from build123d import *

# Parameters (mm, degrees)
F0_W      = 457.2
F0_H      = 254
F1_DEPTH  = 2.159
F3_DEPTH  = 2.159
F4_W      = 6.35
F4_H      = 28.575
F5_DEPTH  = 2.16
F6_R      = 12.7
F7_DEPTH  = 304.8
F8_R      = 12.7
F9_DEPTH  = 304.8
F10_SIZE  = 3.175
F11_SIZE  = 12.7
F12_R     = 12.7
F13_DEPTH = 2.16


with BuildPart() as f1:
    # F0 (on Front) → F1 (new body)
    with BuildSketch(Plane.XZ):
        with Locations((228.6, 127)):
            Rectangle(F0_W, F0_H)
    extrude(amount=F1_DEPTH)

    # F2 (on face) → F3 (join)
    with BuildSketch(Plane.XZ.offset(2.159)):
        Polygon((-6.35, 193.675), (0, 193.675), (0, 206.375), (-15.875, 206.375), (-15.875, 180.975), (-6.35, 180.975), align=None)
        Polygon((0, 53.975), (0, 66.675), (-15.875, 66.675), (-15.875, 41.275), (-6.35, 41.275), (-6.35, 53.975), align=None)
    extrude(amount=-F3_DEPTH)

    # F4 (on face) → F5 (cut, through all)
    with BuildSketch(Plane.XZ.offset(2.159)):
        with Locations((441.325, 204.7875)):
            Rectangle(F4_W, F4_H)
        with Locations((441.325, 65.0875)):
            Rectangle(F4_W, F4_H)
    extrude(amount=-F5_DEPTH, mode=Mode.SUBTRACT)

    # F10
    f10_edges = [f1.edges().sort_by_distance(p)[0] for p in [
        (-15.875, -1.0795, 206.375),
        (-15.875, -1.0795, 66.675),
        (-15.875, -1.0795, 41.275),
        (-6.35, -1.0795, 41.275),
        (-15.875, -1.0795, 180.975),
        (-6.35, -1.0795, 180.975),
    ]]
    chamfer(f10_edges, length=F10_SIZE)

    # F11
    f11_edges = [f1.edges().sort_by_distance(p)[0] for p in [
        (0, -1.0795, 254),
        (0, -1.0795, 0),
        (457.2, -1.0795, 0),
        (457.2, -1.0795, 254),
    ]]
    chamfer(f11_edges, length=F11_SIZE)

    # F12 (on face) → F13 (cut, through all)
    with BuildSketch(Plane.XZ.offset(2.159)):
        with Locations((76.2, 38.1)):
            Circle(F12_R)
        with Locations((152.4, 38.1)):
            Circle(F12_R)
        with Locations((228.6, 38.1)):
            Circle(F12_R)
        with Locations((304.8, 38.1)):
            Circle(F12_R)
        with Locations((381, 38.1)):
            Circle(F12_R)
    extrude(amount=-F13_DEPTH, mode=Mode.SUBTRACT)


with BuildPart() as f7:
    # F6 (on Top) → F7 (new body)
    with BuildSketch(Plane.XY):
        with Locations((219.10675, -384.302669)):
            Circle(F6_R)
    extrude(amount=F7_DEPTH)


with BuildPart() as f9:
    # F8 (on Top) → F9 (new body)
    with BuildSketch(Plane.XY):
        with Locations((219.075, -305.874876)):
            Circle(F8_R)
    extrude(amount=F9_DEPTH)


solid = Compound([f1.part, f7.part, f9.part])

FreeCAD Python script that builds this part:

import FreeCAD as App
import Part
import Sketcher

V = App.Vector
Q = App.Units.Quantity


def edges_at(feature, points):
    """Names of the edges that pass closest to the given points."""
    edges = feature.Shape.Edges
    near = lambda p: min(range(len(edges)), key=lambda i: edges[i].distToShape(Part.Vertex(*p))[0])
    return sorted({f"Edge{near(p) + 1}" for p in points})


def add_polygon(sketch, points):
    """Adds a closed chain of lines whose ends are joined by coincident constraints."""
    first, n = sketch.GeometryCount, len(points)
    for a, b in zip(points, points[1:] + points[:1]):
        sketch.addGeometry(Part.LineSegment(App.Vector(*a, 0), App.Vector(*b, 0)), False)
    for i in range(n):
        sketch.addConstraint(Sketcher.Constraint("Coincident", first + i, 2, first + (i + 1) % n, 1))

doc = App.newDocument("Part")
body = doc.addObject("PartDesign::Body", "Body")

sketch1 = body.newObject("Sketcher::SketchObject", "Sketch")
sketch1.AttachmentSupport = (doc.getObject("XZ_Plane"), [""])
sketch1.MapMode = "FlatFace"
add_polygon(sketch1, [(0, 254), (0, 0), (457, 0), (457, 254)])
sketch1.addConstraint([
    Sketcher.Constraint("Vertical", 0),
    Sketcher.Constraint("Horizontal", 1),
    Sketcher.Constraint("Vertical", 2),
    Sketcher.Constraint("Horizontal", 3),
    Sketcher.Constraint("Coincident", 0, 2, -1, 1),
    Sketcher.Constraint("DistanceX", 1, 1, 1, 2, Q("18 in")),
    Sketcher.Constraint("DistanceY", 0, 2, 0, 1, Q("10 in")),
])
pad1 = body.newObject("PartDesign::Pad", "Pad")
pad1.Profile = sketch1
pad1.Length = Q("0.085 in")

sketch2 = body.newObject("Sketcher::SketchObject", "Sketch001")
sketch2.AttachmentSupport = (doc.getObject("XZ_Plane"), [""])
sketch2.MapMode = "FlatFace"
sketch2.AttachmentOffset = App.Placement(V(0, 0, 0.085 * 25.4), App.Rotation())
add_polygon(sketch2, [(-6, 194), (0, 194), (0, 206), (-16, 206), (-16, 181), (-6, 181)])
add_polygon(sketch2, [(0, 54), (0, 67), (-16, 67), (-16, 41), (-6, 41), (-6, 54)])
sketch2.addConstraint([
    Sketcher.Constraint("Horizontal", 0),
    Sketcher.Constraint("Vertical", 1),
    Sketcher.Constraint("Horizontal", 2),
    Sketcher.Constraint("Vertical", 3),
    Sketcher.Constraint("Horizontal", 4),
    Sketcher.Constraint("Vertical", 5),
    Sketcher.Constraint("Vertical", 6),
    Sketcher.Constraint("Horizontal", 7),
    Sketcher.Constraint("Vertical", 8),
    Sketcher.Constraint("Horizontal", 9),
    Sketcher.Constraint("Vertical", 10),
    Sketcher.Constraint("Horizontal", 11),
    Sketcher.Constraint("PointOnObject", 0, 2, -2),
    Sketcher.Constraint("PointOnObject", 6, 2, -2),
    Sketcher.Constraint("Vertical", 3, 2, 7, 2),
    Sketcher.Constraint("Vertical", 5, 2, 9, 2),
    Sketcher.Constraint("Equal", 1, 5),
    Sketcher.Constraint("Equal", 5, 6),
    Sketcher.Constraint("Equal", 3, 8),
    Sketcher.Constraint("DistanceY", 3, 2, 3, 1, Q("1 in")),
    Sketcher.Constraint("DistanceY", 6, 2, 0, 2, Q("5 in")),
    Sketcher.Constraint("DistanceX", 0, 1, 0, 2, Q("0.25 in")),
    Sketcher.Constraint("DistanceX", 2, 2, 2, 1, Q("0.625 in")),
    Sketcher.Constraint("DistanceY", -1, 1, 0, 2, Q("7.625 in")),
])
pad2 = body.newObject("PartDesign::Pad", "Pad001")
pad2.Profile = sketch2
pad2.Length = Q("0.085 in")
pad2.Reversed = True

sketch3 = body.newObject("Sketcher::SketchObject", "Sketch002")
sketch3.AttachmentSupport = (doc.getObject("XZ_Plane"), [""])
sketch3.MapMode = "FlatFace"
sketch3.AttachmentOffset = App.Placement(V(0, 0, 0.085 * 25.4), App.Rotation())
add_polygon(sketch3, [(438, 219), (438, 190), (444, 190), (444, 219)])
add_polygon(sketch3, [(438, 79), (438, 51), (444, 51), (444, 79)])
sketch3.addConstraint([
    Sketcher.Constraint("Vertical", 0),
    Sketcher.Constraint("Horizontal", 1),
    Sketcher.Constraint("Vertical", 2),
    Sketcher.Constraint("Horizontal", 3),
    Sketcher.Constraint("Vertical", 4),
    Sketcher.Constraint("Horizontal", 5),
    Sketcher.Constraint("Vertical", 6),
    Sketcher.Constraint("Horizontal", 7),
    Sketcher.Constraint("Vertical", 3, 2, 4, 2),
    Sketcher.Constraint("Vertical", 2, 2, 5, 2),
    Sketcher.Constraint("Equal", 2, 4),
    Sketcher.Constraint("DistanceY", -1, 1, 4, 2, Q("2 in")),
    Sketcher.Constraint("DistanceX", 1, 1, 1, 2, Q("0.25 in")),
    Sketcher.Constraint("DistanceY", -1, 1, 0, 2, Q("7.5 in")),
    Sketcher.Constraint("DistanceX", -1, 1, 1, 2, Q("17.5 in")),
    Sketcher.Constraint("DistanceY", 0, 2, 0, 1, Q("1.125 in")),
])
pocket1 = body.newObject("PartDesign::Pocket", "Pocket")
pocket1.Profile = sketch3
pocket1.Type = "ThroughAll"
doc.recompute()

chamfer = body.newObject("PartDesign::Chamfer", "Chamfer")
chamfer.Base = (pocket1, edges_at(pocket1, [
    (-15.875, -1.079, 206.375),
    (-15.875, -1.079, 66.675),
    (-15.875, -1.079, 41.275),
    (-6.35, -1.079, 41.275),
    (-15.875, -1.079, 180.975),
    (-6.35, -1.079, 180.975),
]))
chamfer.Size = Q("0.125 in")
doc.recompute()

chamfer2 = body.newObject("PartDesign::Chamfer", "Chamfer001")
chamfer2.Base = (chamfer, edges_at(chamfer, [
    (0, -1.079, 254),
    (0, -1.079, 0),
    (457.2, -1.079, 0),
    (457.2, -1.079, 254),
]))
chamfer2.Size = Q("0.5 in")

sketch4 = body.newObject("Sketcher::SketchObject", "Sketch003")
sketch4.AttachmentSupport = (doc.getObject("XZ_Plane"), [""])
sketch4.MapMode = "FlatFace"
sketch4.AttachmentOffset = App.Placement(V(0, 0, 0.085 * 25.4), App.Rotation())
sketch4.addGeometry([
    Part.Circle(V(76, 38, 0), V(0, 0, 1), 13),
    Part.Circle(V(152, 38, 0), V(0, 0, 1), 13),
    Part.Circle(V(229, 38, 0), V(0, 0, 1), 13),
    Part.Circle(V(305, 38, 0), V(0, 0, 1), 13),
    Part.Circle(V(381, 38, 0), V(0, 0, 1), 13),
], False)
sketch4.addConstraint([
    Sketcher.Constraint("Equal", 0, 1),
    Sketcher.Constraint("Equal", 1, 2),
    Sketcher.Constraint("Equal", 2, 3),
    Sketcher.Constraint("Equal", 3, 4),
    Sketcher.Constraint("Horizontal", 0, 3, 1, 3),
    Sketcher.Constraint("Horizontal", 1, 3, 2, 3),
    Sketcher.Constraint("Horizontal", 2, 3, 3, 3),
    Sketcher.Constraint("Horizontal", 3, 3, 4, 3),
    Sketcher.Constraint("Diameter", 0, Q("1 in")),
    Sketcher.Constraint("DistanceX", -1, 1, 0, 3, Q("3 in")),
    Sketcher.Constraint("DistanceX", -1, 1, 1, 3, Q("6 in")),
    Sketcher.Constraint("DistanceX", -1, 1, 2, 3, Q("9 in")),
    Sketcher.Constraint("DistanceX", -1, 1, 3, 3, Q("12 in")),
    Sketcher.Constraint("DistanceX", -1, 1, 4, 3, Q("15 in")),
    Sketcher.Constraint("DistanceY", -1, 1, 0, 3, Q("1.5 in")),
])
pocket2 = body.newObject("PartDesign::Pocket", "Pocket001")
pocket2.Profile = sketch4
pocket2.Type = "ThroughAll"
body2 = doc.addObject("PartDesign::Body", "Body001")

sketch5 = body2.newObject("Sketcher::SketchObject", "Sketch004")
sketch5.AttachmentSupport = (doc.getObject("XY_Plane001"), [""])
sketch5.MapMode = "FlatFace"
sketch5.addGeometry(Part.Circle(V(219, -384, 0), V(0, 0, 1), 13), False)
sketch5.addConstraint([
    Sketcher.Constraint("Diameter", 0, Q("1 in")),
    Sketcher.Constraint("DistanceX", -1, 1, 0, 3, 219.10675),
    Sketcher.Constraint("DistanceY", 0, 3, -1, 1, 384.302669),
])
pad3 = body2.newObject("PartDesign::Pad", "Pad002")
pad3.Profile = sketch5
pad3.Length = Q("12 in")
body3 = doc.addObject("PartDesign::Body", "Body002")

sketch6 = body3.newObject("Sketcher::SketchObject", "Sketch005")
sketch6.AttachmentSupport = (doc.getObject("XY_Plane002"), [""])
sketch6.MapMode = "FlatFace"
sketch6.addGeometry(Part.Circle(V(219, -306, 0), V(0, 0, 1), 13), False)
sketch6.addConstraint([
    Sketcher.Constraint("Diameter", 0, Q("1 in")),
    Sketcher.Constraint("DistanceX", -1, 1, 0, 3, Q("8.625 in")),
    Sketcher.Constraint("DistanceY", 0, 3, -1, 1, 305.874876),
])
pad4 = body3.newObject("PartDesign::Pad", "Pad003")
pad4.Profile = sketch6
pad4.Length = Q("12 in")

doc.recompute()
